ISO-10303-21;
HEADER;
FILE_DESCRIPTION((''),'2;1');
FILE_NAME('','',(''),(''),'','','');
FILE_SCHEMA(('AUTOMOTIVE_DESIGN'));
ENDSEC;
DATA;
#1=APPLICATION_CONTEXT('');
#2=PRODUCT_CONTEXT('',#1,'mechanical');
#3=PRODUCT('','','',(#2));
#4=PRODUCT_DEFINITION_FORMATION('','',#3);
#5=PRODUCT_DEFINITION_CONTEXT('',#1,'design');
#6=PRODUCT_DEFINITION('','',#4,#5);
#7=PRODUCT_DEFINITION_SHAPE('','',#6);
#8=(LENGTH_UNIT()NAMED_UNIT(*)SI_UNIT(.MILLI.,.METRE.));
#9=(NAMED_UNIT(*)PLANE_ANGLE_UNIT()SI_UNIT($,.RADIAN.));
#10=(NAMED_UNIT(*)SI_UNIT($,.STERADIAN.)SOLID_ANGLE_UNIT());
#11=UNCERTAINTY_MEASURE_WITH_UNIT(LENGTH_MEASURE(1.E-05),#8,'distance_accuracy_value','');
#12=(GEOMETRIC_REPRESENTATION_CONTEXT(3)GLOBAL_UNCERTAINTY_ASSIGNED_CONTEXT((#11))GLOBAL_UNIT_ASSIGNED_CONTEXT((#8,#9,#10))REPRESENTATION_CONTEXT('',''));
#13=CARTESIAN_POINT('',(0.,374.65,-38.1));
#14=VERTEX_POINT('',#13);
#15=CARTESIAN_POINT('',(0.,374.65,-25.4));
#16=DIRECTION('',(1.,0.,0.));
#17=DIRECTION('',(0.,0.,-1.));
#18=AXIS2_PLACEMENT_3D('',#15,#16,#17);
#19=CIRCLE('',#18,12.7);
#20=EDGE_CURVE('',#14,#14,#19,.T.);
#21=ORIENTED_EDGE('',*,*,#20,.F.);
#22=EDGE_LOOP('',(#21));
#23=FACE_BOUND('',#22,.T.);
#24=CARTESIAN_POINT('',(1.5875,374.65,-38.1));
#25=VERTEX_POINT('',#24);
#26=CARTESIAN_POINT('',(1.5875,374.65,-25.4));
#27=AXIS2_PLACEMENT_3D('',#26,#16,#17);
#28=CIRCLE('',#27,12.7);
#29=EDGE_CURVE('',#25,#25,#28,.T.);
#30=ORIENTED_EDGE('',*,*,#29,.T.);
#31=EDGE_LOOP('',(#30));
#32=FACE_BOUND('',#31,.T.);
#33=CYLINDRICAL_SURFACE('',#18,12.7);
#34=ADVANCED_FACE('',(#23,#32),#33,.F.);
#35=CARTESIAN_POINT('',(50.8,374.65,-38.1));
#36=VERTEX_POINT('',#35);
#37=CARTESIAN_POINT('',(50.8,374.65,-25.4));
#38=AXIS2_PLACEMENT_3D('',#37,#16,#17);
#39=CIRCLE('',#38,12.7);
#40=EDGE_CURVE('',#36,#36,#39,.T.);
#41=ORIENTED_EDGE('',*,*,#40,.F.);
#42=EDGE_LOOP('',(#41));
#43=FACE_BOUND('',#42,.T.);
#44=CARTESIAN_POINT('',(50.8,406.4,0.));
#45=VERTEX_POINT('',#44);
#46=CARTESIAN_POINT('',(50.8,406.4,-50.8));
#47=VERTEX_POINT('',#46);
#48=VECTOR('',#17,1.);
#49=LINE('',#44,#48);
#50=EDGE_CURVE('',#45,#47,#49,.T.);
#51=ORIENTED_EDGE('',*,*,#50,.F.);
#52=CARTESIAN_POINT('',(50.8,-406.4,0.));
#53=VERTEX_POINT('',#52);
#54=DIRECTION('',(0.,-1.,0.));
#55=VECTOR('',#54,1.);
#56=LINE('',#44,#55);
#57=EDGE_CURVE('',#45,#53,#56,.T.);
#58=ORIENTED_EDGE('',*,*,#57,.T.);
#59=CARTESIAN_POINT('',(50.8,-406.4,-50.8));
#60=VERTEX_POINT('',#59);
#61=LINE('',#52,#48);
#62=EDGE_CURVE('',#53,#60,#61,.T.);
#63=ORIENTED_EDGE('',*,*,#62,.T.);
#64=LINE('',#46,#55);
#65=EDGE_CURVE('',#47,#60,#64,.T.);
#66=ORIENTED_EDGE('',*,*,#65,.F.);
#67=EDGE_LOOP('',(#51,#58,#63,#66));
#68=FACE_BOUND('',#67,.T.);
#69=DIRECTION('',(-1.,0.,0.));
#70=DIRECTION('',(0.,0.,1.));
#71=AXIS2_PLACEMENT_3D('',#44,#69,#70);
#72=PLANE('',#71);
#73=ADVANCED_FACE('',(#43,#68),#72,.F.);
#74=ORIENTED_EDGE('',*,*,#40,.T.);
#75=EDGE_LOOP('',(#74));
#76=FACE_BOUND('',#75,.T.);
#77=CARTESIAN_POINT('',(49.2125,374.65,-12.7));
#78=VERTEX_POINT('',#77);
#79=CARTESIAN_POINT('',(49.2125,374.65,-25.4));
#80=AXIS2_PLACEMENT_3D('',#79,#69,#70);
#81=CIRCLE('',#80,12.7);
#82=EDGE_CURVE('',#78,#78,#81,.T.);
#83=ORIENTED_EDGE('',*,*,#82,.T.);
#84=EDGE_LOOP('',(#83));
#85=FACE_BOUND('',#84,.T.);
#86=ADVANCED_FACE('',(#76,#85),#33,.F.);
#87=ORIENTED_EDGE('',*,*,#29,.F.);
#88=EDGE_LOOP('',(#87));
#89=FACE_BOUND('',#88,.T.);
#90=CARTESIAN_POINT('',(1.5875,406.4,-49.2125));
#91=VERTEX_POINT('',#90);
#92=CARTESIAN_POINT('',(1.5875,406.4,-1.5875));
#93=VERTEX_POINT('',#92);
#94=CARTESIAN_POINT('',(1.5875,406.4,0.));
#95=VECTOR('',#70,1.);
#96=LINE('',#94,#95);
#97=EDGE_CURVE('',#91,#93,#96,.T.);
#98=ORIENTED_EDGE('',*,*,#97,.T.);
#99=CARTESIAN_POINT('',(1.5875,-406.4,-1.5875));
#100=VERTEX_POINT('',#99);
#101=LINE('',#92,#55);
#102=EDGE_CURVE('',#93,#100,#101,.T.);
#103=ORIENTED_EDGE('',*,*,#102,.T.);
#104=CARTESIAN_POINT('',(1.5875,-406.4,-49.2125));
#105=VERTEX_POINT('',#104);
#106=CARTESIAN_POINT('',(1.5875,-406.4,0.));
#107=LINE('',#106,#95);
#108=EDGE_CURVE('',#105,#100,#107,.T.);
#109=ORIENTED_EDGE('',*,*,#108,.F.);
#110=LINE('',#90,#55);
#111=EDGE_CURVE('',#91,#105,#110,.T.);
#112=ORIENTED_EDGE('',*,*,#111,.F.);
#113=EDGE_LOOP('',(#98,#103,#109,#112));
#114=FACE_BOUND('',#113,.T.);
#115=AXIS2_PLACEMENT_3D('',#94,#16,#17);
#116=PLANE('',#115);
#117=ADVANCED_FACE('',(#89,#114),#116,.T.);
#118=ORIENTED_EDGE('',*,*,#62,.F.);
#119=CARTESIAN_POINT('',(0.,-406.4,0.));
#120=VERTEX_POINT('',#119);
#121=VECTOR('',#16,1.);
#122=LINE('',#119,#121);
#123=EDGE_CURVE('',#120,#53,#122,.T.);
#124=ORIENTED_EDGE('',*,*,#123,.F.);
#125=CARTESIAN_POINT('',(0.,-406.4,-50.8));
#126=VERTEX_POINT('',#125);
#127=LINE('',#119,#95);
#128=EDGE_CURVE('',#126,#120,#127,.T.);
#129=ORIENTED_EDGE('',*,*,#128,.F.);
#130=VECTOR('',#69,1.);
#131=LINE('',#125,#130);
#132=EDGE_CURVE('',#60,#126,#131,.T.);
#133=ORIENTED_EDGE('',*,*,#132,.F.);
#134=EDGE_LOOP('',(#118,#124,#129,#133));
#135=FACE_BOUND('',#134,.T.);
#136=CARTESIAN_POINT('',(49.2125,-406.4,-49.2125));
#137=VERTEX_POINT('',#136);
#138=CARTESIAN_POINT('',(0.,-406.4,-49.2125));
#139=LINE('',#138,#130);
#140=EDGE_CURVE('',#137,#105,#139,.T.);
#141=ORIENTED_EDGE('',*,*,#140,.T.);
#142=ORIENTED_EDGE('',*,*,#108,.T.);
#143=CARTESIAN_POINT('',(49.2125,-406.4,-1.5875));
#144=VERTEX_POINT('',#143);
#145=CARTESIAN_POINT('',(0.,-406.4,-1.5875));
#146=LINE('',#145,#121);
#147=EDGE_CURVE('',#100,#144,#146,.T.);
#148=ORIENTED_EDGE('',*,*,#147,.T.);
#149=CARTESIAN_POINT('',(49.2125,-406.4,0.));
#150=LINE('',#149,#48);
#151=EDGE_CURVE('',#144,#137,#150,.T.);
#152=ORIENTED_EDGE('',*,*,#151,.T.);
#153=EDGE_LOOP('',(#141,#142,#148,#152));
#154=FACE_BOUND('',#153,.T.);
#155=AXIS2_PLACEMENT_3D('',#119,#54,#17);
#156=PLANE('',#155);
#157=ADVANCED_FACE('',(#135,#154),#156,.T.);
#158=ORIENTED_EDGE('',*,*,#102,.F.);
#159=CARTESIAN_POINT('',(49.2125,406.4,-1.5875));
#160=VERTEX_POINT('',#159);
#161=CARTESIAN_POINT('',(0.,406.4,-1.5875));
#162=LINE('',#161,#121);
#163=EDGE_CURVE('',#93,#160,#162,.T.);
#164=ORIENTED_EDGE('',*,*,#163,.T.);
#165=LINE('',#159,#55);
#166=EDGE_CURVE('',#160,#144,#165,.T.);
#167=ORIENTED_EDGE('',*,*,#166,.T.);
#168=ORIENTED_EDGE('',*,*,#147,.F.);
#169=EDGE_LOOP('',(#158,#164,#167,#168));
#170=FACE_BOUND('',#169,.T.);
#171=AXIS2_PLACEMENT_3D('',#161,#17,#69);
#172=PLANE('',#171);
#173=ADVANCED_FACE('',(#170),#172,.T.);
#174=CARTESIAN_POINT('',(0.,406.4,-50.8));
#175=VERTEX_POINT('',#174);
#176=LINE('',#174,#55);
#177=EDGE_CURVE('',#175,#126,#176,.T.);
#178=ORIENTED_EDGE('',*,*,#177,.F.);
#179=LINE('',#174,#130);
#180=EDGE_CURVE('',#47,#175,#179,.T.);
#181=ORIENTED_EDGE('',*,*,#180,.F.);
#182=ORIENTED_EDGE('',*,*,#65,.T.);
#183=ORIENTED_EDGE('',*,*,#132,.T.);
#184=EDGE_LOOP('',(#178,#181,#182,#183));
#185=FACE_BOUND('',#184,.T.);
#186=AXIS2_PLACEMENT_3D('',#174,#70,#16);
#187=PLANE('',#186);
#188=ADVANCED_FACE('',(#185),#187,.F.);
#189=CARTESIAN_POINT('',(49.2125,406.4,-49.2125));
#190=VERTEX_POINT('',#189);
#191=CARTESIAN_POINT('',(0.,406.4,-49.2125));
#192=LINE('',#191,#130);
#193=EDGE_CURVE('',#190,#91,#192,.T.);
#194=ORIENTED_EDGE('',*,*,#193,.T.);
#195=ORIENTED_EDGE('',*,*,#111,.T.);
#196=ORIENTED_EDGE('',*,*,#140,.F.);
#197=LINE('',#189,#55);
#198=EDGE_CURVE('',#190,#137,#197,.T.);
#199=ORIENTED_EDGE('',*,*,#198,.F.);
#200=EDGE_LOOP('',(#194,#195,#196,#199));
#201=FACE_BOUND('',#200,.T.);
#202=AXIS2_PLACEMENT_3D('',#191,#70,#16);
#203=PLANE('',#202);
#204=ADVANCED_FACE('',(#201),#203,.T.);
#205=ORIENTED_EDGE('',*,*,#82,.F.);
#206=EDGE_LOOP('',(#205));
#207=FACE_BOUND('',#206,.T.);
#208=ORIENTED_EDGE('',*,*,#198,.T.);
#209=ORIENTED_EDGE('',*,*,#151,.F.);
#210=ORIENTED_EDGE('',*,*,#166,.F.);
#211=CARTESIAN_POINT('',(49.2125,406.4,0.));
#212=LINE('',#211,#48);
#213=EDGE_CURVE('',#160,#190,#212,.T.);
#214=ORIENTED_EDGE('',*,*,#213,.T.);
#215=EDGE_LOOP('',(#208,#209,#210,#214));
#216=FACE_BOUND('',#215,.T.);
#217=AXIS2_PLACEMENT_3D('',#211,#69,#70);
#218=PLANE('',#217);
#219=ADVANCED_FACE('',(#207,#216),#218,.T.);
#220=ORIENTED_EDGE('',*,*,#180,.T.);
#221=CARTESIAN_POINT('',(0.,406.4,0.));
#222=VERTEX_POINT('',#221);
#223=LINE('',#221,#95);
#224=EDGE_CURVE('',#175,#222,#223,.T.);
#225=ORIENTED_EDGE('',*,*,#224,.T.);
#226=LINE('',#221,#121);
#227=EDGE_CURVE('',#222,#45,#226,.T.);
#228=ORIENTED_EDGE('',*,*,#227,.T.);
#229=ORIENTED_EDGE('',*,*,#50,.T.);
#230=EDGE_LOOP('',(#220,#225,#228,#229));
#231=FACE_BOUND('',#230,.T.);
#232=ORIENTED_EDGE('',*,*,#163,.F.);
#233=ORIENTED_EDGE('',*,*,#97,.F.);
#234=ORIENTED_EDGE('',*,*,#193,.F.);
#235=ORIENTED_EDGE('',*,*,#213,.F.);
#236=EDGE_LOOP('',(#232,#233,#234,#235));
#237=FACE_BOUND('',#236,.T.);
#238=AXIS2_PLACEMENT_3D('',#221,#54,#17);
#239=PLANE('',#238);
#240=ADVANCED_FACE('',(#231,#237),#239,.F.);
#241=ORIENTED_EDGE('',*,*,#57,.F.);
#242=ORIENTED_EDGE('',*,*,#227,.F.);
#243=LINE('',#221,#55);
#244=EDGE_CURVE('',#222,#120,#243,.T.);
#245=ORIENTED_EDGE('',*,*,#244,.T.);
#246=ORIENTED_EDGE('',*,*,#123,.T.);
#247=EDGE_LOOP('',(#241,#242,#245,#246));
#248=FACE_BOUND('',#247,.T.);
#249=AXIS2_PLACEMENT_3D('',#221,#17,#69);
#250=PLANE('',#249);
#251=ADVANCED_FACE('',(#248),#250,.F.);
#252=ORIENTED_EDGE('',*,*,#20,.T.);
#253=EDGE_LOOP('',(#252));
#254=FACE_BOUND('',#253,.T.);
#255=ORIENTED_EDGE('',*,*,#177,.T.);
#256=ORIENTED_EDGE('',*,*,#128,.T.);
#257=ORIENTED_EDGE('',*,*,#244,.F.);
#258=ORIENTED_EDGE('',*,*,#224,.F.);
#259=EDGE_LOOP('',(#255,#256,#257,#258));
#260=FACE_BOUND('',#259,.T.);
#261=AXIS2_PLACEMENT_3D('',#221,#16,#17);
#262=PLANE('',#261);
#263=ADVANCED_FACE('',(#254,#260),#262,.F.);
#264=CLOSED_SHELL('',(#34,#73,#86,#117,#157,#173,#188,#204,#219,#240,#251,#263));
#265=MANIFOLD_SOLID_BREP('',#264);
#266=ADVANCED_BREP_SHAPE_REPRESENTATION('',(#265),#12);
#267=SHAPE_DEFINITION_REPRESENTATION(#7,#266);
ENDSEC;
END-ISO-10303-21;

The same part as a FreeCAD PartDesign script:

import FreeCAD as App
import Part
import Sketcher
from FreeCAD import Vector
Q = App.Units.Quantity


def faces_at(feature, points):
    """Names of the faces that lie closest to the given points."""
    faces = feature.Shape.Faces
    near = lambda p: min(range(len(faces)), key=lambda i: faces[i].distToShape(Part.Vertex(*p))[0])
    return sorted({f"Face{near(p) + 1}" for p in points})

doc = App.newDocument("Part")
body = doc.addObject("PartDesign::Body", "Body")

# Sketch on XZ plane
sketch1 = body.newObject("Sketcher::SketchObject", "Sketch")
sketch1.AttachmentSupport = (doc.getObject("XZ_Plane"), [""])
sketch1.MapMode = "FlatFace"
sketch1.addGeometry([
    Part.LineSegment(Vector(0, -51, 0), Vector(0, 0, 0)),
    Part.LineSegment(Vector(0, 0, 0), Vector(51, 0, 0)),
    Part.LineSegment(Vector(51, 0, 0), Vector(51, -51, 0)),
    Part.LineSegment(Vector(51, -51, 0), Vector(0, -51, 0)),
], False)
sketch1.addConstraint([
    Sketcher.Constraint("Coincident", 0, 2, 1, 1),
    Sketcher.Constraint("Coincident", 1, 2, 2, 1),
    Sketcher.Constraint("Coincident", 2, 2, 3, 1),
    Sketcher.Constraint("Coincident", 3, 2, 0, 1),
    Sketcher.Constraint("Vertical", 0),
    Sketcher.Constraint("Horizontal", 1),
    Sketcher.Constraint("Vertical", 2),
    Sketcher.Constraint("Horizontal", 3),
    Sketcher.Constraint("Coincident", 0, 2, -1, 1),
    Sketcher.Constraint("Equal", 3, 0),
    Sketcher.Constraint("DistanceX", 1, 1, 1, 2, Q("2 in")),
])
pad1 = body.newObject("PartDesign::Pad", "Pad")
pad1.Profile = sketch1
pad1.Length = Q("32 in")
pad1.Midplane = True
doc.recompute()

thickness = body.newObject("PartDesign::Thickness", "Thickness")
thickness.Base = (pad1, faces_at(pad1, [(25.4, 406.4, -25.4), (25.4, -406.4, -25.4)]))
thickness.Value = Q("0.0625 in")
thickness.Reversed = True
thickness.Join = "Intersection"

# Sketch on YZ plane
sketch2 = body.newObject("Sketcher::SketchObject", "Sketch001")
sketch2.AttachmentSupport = (doc.getObject("YZ_Plane"), [""])
sketch2.MapMode = "FlatFace"
sketch2.AttachmentOffset = App.Placement(Vector(0, 0, 2 * 25.4), App.Rotation())
sketch2.addGeometry(Part.Circle(Vector(375, -25, 0), Vector(0, 0, 1), 13), False)
sketch2.addConstraint([
    Sketcher.Constraint("Diameter", 0, Q("1 in")),
    Sketcher.Constraint("DistanceY", 0, 3, -1, 1, Q("1 in")),
    Sketcher.Constraint("DistanceX", -1, 1, 0, 3, Q("14.75 in")),
])
pocket1 = body.newObject("PartDesign::Pocket", "Pocket")
pocket1.Profile = sketch2
pocket1.Type = "ThroughAll"

doc.recompute()
